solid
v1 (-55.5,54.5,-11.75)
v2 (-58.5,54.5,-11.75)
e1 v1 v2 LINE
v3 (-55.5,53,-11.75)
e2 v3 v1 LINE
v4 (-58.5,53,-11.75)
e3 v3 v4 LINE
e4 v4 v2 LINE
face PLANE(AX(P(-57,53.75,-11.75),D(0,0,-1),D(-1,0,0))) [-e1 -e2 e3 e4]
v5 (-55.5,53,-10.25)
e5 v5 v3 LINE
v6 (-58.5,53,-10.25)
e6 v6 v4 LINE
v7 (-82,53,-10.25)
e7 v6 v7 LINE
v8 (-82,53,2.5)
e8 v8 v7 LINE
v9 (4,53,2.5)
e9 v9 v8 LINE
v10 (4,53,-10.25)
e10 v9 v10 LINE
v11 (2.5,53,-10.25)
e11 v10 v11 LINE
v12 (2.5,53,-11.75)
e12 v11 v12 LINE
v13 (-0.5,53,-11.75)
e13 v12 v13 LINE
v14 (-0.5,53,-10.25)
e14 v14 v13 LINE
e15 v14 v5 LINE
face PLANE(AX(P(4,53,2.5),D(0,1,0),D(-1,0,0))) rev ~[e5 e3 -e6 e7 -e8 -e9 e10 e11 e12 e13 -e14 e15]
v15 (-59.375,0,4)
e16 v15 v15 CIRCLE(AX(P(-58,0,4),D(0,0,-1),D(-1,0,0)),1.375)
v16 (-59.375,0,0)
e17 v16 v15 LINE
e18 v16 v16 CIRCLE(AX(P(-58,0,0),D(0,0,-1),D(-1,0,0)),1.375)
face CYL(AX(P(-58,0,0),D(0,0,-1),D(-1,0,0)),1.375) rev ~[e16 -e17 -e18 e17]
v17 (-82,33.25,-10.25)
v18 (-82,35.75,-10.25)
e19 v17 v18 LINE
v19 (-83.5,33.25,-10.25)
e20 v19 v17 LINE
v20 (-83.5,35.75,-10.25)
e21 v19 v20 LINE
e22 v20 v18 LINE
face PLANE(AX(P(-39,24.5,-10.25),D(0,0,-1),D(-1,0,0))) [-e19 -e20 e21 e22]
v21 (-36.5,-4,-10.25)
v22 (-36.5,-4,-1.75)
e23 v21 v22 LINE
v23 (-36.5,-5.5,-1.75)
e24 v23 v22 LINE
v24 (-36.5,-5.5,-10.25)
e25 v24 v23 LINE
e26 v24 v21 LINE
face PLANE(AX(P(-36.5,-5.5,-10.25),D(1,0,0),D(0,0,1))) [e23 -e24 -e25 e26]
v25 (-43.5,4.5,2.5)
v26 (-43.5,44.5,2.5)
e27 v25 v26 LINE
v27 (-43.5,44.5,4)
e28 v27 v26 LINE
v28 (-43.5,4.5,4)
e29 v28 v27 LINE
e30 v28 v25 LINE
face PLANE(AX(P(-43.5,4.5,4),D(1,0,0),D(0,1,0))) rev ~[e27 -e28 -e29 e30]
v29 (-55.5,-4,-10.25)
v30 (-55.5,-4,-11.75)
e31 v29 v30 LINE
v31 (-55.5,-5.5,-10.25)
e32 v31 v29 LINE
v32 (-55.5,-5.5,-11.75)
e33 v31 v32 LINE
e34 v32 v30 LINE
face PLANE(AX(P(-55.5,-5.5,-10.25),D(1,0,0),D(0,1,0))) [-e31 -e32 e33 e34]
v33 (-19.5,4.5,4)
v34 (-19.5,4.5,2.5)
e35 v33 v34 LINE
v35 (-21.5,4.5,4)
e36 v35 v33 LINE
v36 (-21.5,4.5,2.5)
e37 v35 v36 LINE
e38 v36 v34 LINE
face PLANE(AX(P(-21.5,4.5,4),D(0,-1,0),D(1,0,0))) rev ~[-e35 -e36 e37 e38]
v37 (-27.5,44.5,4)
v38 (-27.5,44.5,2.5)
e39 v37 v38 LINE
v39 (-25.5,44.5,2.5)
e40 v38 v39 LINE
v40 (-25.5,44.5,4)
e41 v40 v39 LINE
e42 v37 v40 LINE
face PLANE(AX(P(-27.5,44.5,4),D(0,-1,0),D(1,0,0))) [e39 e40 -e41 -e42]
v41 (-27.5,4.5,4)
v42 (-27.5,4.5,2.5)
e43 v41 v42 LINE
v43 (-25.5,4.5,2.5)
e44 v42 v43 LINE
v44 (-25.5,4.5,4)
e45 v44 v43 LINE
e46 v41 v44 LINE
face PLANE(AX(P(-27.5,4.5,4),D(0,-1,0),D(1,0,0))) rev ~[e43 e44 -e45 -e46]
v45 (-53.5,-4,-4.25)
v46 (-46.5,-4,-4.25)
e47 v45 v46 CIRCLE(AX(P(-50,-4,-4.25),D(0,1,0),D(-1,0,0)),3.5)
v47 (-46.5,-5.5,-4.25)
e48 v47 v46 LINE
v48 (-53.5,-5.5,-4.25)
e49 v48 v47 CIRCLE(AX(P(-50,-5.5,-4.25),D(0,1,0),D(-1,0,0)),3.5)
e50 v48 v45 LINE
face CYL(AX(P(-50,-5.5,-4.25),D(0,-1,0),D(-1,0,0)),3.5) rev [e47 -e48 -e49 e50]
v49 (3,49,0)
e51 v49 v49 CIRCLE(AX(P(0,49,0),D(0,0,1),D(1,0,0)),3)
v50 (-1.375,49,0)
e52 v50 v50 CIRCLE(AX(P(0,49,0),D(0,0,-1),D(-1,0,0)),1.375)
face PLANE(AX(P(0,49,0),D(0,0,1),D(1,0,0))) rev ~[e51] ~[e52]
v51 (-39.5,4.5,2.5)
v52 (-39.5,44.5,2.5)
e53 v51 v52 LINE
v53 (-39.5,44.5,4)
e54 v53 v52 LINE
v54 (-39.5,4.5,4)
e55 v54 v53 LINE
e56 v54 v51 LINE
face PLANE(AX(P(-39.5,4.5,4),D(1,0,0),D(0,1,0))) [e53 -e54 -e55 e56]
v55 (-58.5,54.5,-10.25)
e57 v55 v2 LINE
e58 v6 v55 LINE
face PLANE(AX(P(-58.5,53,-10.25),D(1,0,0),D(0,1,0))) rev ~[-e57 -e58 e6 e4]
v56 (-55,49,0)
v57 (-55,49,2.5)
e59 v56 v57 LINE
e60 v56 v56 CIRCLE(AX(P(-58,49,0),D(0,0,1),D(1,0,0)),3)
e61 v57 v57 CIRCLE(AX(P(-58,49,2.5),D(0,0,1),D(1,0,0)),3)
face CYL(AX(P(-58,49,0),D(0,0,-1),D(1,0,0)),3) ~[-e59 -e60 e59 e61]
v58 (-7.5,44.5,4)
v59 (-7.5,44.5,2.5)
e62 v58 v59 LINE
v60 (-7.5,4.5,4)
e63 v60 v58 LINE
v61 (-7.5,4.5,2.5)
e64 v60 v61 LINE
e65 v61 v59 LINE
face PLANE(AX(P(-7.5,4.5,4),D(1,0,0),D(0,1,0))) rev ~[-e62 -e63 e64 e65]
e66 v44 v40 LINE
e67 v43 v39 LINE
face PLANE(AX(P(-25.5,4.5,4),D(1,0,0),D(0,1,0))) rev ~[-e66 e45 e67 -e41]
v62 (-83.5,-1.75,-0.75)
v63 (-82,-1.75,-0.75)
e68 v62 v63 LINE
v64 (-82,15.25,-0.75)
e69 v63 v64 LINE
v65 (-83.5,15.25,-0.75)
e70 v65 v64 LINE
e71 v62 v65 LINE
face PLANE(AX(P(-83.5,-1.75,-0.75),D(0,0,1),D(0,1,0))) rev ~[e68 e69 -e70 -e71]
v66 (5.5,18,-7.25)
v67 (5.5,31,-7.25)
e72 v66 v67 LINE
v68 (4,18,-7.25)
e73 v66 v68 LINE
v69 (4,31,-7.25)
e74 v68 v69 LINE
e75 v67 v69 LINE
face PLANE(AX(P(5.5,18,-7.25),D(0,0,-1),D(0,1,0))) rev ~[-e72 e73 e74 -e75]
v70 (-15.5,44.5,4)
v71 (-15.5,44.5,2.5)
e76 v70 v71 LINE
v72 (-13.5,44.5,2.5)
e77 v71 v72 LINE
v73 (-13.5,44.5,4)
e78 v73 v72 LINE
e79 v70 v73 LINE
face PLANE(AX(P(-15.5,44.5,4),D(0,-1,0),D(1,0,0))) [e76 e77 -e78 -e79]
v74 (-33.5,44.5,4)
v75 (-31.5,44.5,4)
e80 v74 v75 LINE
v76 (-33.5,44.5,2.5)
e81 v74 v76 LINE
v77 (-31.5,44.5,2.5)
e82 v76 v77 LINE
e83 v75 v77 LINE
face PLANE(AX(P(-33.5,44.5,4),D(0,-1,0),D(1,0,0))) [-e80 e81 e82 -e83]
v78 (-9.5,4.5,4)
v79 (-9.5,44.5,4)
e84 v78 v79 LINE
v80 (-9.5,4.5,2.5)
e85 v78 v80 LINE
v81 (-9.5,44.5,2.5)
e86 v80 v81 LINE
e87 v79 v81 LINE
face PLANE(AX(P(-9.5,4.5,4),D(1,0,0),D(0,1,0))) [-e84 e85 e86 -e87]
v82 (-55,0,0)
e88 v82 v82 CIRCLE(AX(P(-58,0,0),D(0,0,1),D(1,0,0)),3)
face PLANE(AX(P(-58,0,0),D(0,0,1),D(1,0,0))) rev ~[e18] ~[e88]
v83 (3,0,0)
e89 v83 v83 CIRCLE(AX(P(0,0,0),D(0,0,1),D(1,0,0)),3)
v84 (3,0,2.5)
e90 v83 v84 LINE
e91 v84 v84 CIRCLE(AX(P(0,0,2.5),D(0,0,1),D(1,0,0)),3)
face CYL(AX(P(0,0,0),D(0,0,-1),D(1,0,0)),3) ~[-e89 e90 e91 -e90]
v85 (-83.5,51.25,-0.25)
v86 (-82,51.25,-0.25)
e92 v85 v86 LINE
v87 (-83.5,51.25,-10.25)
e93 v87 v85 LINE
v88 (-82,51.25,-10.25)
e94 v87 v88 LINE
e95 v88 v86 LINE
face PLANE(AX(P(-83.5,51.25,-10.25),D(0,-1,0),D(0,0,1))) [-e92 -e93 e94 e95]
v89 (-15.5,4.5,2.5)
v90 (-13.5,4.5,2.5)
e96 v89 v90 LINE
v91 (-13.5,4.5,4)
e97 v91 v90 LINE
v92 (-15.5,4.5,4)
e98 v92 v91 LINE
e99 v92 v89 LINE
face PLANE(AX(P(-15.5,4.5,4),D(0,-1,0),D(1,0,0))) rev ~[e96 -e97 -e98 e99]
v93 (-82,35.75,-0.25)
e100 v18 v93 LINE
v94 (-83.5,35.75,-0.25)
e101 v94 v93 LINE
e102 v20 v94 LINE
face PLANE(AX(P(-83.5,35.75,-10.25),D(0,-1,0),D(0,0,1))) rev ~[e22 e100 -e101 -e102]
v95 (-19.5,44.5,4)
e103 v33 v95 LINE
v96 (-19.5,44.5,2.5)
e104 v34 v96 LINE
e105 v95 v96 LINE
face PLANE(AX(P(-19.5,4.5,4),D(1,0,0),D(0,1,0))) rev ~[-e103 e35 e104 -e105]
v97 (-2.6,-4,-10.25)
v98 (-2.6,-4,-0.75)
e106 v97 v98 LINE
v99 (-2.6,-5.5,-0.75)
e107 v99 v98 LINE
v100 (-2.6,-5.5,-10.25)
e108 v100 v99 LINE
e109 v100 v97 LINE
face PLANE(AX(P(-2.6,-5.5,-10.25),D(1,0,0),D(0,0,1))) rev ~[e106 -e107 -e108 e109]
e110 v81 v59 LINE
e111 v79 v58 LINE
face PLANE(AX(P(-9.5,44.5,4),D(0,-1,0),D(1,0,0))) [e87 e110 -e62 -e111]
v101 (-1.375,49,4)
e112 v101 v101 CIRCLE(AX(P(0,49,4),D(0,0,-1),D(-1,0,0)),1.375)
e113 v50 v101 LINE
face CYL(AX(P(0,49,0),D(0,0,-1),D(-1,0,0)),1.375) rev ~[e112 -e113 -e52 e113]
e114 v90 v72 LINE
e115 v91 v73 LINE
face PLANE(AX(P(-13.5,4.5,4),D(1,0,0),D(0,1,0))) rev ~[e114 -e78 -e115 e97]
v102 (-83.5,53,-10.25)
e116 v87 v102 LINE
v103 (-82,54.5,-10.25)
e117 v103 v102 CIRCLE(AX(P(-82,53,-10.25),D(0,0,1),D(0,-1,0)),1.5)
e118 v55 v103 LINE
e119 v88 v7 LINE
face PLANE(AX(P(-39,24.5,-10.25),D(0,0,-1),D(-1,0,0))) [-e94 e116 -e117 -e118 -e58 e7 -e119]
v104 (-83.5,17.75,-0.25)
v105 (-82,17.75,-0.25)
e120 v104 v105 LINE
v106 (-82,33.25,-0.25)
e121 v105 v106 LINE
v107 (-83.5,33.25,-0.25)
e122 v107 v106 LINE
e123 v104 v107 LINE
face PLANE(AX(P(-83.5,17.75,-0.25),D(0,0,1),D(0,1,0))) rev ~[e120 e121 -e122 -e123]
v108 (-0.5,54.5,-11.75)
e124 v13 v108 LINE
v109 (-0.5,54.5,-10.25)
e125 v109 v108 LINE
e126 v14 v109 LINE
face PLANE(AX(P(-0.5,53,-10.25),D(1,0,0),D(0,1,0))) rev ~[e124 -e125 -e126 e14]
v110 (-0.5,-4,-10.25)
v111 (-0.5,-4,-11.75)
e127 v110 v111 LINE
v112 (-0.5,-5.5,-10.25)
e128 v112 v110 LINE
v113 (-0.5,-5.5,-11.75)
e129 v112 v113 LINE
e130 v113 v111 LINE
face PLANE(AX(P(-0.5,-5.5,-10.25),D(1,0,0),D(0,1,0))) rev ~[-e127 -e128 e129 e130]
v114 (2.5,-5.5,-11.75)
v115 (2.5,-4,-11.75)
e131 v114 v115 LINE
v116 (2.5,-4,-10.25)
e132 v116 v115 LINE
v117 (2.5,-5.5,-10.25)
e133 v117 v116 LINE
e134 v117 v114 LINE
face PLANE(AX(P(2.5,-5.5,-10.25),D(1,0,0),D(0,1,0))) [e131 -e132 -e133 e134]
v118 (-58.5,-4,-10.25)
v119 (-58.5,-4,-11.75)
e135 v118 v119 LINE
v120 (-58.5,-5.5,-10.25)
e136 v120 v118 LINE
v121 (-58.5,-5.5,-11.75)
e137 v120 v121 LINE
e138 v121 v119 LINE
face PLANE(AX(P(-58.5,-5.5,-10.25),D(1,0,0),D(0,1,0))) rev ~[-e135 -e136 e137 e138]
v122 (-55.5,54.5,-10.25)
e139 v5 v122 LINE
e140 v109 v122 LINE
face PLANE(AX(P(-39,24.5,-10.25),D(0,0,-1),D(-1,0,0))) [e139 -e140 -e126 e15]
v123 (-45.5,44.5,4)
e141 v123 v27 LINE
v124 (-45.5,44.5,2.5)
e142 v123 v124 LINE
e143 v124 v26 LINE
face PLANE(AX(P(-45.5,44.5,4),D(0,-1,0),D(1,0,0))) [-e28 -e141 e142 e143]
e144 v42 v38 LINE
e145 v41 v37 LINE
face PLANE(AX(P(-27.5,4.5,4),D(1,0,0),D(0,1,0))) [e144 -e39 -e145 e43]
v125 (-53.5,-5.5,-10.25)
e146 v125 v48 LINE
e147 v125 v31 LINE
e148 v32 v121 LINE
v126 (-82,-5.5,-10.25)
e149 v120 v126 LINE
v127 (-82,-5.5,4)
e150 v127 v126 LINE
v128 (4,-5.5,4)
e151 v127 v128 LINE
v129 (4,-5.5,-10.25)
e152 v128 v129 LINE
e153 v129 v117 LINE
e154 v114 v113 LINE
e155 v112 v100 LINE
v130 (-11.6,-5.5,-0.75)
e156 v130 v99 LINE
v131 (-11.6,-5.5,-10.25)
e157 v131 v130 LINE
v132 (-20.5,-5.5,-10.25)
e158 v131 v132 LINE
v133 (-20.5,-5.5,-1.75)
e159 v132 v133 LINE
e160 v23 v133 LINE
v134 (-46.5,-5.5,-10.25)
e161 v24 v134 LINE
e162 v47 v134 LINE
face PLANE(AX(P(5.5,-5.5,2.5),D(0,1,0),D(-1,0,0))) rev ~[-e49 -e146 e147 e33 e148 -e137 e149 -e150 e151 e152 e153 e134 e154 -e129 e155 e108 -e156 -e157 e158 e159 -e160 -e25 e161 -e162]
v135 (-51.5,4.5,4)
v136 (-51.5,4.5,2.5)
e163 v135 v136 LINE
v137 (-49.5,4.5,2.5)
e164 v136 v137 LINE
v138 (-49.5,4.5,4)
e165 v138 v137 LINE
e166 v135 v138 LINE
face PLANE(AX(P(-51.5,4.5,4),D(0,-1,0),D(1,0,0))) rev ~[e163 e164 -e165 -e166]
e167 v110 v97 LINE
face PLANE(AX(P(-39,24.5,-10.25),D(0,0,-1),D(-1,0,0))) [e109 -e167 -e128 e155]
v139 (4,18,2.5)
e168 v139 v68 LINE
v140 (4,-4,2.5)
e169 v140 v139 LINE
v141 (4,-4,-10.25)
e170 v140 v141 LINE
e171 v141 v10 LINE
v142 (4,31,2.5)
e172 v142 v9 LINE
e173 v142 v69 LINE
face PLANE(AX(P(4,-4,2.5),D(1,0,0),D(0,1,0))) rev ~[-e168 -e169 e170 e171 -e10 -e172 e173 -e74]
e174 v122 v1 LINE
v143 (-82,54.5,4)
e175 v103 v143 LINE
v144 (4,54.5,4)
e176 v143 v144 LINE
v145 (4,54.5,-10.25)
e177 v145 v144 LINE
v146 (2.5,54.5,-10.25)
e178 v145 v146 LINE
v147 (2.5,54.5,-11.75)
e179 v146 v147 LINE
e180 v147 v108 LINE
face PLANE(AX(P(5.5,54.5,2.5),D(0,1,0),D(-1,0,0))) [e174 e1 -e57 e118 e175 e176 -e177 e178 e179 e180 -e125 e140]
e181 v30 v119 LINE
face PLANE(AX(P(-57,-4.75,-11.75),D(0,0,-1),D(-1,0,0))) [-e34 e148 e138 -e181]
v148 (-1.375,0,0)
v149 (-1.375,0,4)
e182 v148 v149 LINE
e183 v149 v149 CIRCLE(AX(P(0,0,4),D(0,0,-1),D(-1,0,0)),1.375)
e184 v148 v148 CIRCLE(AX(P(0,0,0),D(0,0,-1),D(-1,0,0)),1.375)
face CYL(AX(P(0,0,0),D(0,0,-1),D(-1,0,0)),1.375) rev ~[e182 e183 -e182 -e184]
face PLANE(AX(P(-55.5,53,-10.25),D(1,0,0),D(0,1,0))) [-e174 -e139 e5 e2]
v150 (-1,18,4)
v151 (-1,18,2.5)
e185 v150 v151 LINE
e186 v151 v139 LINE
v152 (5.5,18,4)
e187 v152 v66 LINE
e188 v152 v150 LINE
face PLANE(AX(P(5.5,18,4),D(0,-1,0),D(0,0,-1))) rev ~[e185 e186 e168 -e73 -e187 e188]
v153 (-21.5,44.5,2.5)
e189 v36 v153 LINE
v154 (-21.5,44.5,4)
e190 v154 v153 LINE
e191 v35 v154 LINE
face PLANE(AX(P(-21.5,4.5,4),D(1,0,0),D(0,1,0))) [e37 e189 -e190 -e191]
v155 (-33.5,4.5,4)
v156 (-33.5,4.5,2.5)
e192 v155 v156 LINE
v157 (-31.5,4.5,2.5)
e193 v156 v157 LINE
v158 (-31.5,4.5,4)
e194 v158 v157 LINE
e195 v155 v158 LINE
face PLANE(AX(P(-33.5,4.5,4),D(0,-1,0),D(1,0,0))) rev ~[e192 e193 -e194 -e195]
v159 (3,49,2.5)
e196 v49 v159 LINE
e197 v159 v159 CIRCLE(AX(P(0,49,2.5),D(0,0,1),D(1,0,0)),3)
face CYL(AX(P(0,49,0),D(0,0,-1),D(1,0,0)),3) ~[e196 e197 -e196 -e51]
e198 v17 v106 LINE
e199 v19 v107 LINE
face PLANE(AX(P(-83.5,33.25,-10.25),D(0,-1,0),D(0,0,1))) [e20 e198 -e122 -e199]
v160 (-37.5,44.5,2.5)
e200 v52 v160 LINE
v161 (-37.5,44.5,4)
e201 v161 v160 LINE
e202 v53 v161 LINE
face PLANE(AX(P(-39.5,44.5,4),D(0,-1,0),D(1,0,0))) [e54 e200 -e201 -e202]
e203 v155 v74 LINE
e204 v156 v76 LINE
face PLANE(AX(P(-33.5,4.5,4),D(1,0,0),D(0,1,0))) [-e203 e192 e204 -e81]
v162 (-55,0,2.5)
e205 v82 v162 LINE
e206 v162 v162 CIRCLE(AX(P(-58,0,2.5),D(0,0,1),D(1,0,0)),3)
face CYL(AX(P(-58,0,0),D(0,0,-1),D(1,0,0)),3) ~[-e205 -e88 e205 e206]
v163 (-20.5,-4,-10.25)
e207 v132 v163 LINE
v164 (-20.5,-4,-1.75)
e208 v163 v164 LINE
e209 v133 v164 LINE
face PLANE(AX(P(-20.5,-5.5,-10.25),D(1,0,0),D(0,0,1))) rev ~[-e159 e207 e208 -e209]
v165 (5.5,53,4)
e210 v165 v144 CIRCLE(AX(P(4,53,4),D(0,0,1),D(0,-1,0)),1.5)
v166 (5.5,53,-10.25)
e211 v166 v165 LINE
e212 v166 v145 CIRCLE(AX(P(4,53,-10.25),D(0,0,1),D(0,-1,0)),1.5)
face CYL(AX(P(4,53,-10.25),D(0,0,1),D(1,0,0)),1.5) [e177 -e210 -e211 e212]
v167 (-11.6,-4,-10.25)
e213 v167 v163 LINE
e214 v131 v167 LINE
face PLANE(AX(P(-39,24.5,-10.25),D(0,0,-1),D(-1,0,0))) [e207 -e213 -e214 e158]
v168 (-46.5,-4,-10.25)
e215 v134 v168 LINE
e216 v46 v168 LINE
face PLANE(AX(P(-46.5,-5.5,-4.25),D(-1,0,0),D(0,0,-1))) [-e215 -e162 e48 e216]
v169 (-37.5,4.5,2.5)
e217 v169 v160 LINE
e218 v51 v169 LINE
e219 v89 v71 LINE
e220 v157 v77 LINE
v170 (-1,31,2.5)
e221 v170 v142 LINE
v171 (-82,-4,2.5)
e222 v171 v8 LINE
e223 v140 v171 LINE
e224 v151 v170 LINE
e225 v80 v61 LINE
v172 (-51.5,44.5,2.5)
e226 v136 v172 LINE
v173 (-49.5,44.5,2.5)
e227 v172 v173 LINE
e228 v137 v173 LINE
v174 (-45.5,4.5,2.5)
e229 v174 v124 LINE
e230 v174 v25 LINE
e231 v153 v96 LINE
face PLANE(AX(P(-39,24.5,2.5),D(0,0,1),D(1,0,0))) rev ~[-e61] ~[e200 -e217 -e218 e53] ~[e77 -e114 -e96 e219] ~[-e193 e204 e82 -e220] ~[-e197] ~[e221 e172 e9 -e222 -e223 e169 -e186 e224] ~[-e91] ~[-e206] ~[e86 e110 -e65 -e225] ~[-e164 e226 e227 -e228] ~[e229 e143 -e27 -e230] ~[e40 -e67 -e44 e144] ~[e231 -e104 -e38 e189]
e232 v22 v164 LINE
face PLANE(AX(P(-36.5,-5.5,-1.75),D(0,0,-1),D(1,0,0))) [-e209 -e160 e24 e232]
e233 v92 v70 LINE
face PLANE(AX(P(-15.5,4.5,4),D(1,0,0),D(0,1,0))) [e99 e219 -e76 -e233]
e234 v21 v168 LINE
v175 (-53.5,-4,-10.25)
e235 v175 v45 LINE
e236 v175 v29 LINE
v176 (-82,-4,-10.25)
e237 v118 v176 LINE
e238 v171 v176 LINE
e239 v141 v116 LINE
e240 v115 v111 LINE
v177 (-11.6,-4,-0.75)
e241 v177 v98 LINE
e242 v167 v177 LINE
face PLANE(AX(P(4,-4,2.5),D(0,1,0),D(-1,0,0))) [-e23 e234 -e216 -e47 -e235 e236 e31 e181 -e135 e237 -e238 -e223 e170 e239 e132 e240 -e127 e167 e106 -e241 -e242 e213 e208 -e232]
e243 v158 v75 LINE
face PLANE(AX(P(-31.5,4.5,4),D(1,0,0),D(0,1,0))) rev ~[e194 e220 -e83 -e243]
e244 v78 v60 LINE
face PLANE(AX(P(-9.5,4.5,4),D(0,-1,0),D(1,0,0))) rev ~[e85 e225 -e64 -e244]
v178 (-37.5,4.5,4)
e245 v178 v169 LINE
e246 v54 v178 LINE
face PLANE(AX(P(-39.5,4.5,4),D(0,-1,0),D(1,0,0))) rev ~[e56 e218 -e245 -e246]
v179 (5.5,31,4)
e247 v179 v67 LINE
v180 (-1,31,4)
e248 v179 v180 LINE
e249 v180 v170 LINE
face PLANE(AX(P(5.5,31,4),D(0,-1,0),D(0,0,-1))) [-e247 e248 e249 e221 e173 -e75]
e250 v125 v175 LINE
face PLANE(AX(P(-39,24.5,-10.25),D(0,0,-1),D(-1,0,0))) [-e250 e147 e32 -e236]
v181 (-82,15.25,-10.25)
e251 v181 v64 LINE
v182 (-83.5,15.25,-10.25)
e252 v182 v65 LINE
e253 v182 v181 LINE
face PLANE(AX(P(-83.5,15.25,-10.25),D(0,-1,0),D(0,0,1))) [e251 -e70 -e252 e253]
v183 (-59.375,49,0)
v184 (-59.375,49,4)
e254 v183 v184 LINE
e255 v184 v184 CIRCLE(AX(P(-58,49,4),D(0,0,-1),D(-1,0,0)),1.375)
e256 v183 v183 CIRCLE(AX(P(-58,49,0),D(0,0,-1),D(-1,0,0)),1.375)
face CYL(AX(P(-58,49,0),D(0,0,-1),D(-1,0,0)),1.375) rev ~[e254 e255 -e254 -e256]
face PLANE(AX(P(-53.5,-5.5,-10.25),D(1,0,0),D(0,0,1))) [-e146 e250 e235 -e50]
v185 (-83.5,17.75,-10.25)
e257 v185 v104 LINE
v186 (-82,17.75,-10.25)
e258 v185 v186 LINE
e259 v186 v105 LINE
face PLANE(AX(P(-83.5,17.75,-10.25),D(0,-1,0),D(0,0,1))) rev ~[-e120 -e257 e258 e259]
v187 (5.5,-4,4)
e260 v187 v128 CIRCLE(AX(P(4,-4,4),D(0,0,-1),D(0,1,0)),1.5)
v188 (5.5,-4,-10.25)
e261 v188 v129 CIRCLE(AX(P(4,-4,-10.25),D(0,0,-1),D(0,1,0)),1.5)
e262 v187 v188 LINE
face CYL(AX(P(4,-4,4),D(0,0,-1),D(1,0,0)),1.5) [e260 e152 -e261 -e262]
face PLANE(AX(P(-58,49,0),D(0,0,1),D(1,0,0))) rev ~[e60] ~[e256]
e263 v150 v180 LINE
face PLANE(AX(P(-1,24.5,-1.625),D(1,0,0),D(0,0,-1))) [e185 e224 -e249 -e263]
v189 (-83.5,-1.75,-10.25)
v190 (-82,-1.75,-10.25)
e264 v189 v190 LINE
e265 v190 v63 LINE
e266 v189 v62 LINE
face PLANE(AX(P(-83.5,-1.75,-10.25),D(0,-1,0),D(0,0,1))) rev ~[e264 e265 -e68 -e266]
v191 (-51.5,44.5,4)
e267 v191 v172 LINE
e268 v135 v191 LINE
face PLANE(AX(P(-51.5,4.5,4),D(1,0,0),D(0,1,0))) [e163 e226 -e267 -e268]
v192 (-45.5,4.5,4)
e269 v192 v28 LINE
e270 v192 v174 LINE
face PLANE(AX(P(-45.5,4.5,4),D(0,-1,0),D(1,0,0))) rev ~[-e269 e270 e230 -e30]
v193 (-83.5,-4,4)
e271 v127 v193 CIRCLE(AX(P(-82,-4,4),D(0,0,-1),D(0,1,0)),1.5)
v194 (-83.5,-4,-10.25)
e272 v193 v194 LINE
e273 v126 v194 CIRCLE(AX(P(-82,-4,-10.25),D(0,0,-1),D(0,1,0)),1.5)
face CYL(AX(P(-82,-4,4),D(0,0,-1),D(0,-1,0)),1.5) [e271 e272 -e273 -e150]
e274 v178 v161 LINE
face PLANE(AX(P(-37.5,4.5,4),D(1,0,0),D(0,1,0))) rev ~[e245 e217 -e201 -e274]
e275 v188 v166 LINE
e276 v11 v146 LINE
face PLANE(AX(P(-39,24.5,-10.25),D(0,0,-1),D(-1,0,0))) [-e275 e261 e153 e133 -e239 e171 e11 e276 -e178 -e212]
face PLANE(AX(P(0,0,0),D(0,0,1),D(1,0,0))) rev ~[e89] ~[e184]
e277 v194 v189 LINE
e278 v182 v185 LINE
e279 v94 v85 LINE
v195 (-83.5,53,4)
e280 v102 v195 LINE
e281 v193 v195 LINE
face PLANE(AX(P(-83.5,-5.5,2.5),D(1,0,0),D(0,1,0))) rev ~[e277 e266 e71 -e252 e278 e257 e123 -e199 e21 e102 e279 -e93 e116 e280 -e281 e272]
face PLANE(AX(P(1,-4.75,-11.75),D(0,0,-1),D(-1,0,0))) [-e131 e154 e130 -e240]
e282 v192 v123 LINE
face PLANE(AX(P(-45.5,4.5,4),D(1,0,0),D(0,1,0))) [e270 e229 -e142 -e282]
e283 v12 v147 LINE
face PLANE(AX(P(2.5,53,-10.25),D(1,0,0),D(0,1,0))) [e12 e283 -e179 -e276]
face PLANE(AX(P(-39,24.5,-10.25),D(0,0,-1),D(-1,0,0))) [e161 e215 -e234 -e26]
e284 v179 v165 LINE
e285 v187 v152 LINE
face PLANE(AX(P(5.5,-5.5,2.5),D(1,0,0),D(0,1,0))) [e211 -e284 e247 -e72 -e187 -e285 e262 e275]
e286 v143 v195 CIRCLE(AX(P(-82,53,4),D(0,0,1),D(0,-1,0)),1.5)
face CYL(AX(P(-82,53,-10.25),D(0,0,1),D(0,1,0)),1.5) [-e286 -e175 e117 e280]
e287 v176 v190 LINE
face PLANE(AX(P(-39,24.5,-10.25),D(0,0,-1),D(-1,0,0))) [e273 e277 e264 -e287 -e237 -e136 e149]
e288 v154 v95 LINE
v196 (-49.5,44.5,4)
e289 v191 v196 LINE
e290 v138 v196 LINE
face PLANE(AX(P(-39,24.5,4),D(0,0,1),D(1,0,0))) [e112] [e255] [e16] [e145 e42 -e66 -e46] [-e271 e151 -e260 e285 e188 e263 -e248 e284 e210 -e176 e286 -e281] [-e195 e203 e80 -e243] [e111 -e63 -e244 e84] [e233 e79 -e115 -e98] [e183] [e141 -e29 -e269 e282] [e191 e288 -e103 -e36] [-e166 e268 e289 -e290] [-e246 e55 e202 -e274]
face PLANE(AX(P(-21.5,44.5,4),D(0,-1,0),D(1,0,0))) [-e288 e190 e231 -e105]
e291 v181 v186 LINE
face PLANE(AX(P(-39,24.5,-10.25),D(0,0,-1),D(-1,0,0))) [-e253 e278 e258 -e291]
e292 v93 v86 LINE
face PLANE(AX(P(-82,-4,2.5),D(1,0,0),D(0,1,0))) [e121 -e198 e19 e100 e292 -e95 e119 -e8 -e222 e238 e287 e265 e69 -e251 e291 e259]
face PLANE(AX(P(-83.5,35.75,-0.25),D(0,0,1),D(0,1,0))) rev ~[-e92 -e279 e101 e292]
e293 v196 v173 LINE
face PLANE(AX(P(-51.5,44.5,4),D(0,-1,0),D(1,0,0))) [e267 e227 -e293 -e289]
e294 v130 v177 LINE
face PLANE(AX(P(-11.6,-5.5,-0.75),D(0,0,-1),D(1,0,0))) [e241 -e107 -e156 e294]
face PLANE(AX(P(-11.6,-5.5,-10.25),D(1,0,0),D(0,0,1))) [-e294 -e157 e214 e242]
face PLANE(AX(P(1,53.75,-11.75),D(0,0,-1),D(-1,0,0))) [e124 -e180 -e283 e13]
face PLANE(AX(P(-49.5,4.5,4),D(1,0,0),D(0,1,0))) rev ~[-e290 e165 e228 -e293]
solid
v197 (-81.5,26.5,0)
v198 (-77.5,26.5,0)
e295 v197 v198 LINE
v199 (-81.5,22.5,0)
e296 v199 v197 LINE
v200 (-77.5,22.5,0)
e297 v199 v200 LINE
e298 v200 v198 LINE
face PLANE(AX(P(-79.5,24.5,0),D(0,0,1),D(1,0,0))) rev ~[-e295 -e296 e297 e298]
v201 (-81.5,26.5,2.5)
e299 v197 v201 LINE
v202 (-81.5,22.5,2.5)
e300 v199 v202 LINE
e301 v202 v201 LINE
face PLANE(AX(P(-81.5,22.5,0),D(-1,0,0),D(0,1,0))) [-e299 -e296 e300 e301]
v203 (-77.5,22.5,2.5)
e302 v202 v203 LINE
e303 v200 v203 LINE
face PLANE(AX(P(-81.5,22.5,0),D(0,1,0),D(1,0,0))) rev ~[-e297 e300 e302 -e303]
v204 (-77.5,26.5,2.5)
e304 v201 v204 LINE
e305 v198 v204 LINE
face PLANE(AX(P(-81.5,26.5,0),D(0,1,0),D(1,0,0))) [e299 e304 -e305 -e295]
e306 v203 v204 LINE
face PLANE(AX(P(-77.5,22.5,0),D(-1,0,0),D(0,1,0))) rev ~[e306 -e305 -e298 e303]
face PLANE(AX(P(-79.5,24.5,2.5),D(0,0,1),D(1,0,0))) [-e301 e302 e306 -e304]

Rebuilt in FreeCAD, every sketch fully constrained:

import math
import FreeCAD as App
import Part
import Sketcher

V = App.Vector
Q = App.Units.Quantity


def edges_at(feature, points):
    """Names of the edges that pass closest to the given points."""
    edges = feature.Shape.Edges
    near = lambda p: min(range(len(edges)), key=lambda i: edges[i].distToShape(Part.Vertex(*p))[0])
    return sorted({f"Edge{near(p) + 1}" for p in points})

doc = App.newDocument("Part")
body = doc.addObject("PartDesign::Body", "Body")

sketch1 = body.newObject("Sketcher::SketchObject", "Sketch")
sketch1.AttachmentSupport = (doc.getObject("XY_Plane"), [""])
sketch1.MapMode = "FlatFace"
sketch1.addGeometry(Part.Circle(V(0, 0, 0), V(0, 0, 1), 3), False)
sketch1.addConstraint([
    Sketcher.Constraint("Coincident", 0, 3, -1, 1),
    Sketcher.Constraint("Diameter", 0, Q("6 mm")),
])
pad1 = body.newObject("PartDesign::Pad", "Pad")
pad1.Profile = sketch1
pad1.Length = 2.5
body2 = doc.addObject("PartDesign::Body", "Body001")

sketch2 = body2.newObject("Sketcher::SketchObject", "Sketch001")
sketch2.AttachmentSupport = (doc.getObject("XY_Plane001"), [""])
sketch2.MapMode = "FlatFace"
sketch2.addGeometry(Part.Circle(V(0, 49, 0), V(0, 0, 1), 3), False)
sketch2.addConstraint([
    Sketcher.Constraint("PointOnObject", 0, 3, -2),
    Sketcher.Constraint("Diameter", 0, Q("6 mm")),
    Sketcher.Constraint("DistanceY", -1, 1, 0, 3, Q("49 mm")),
])
pad2 = body2.newObject("PartDesign::Pad", "Pad001")
pad2.Profile = sketch2
pad2.Length = 2.5
body3 = doc.addObject("PartDesign::Body", "Body002")

sketch3 = body3.newObject("Sketcher::SketchObject", "Sketch002")
sketch3.AttachmentSupport = (doc.getObject("XY_Plane002"), [""])
sketch3.MapMode = "FlatFace"
sketch3.addGeometry(Part.Circle(V(-58, 0, 0), V(0, 0, 1), 3), False)
sketch3.addConstraint([
    Sketcher.Constraint("PointOnObject", 0, 3, -1),
    Sketcher.Constraint("Diameter", 0, Q("6 mm")),
    Sketcher.Constraint("DistanceX", 0, 3, -1, 1, Q("58 mm")),
])
pad3 = body3.newObject("PartDesign::Pad", "Pad002")
pad3.Profile = sketch3
pad3.Length = 2.5
body4 = doc.addObject("PartDesign::Body", "Body003")

sketch4 = body4.newObject("Sketcher::SketchObject", "Sketch003")
sketch4.AttachmentSupport = (doc.getObject("XY_Plane003"), [""])
sketch4.MapMode = "FlatFace"
sketch4.addGeometry(Part.Circle(V(-58, 49, 0), V(0, 0, 1), 3), False)
sketch4.addConstraint([
    Sketcher.Constraint("Diameter", 0, Q("6 mm")),
    Sketcher.Constraint("DistanceX", 0, 3, -1, 1, Q("58 mm")),
    Sketcher.Constraint("DistanceY", -1, 1, 0, 3, Q("49 mm")),
])
pad4 = body4.newObject("PartDesign::Pad", "Pad003")
pad4.Profile = sketch4
pad4.Length = 2.5
body5 = doc.addObject("PartDesign::Body", "Body004")

sketch5 = body5.newObject("Sketcher::SketchObject", "Sketch004")
sketch5.AttachmentSupport = (doc.getObject("XY_Plane004"), [""])
sketch5.MapMode = "FlatFace"
sketch5.addGeometry([
    Part.LineSegment(V(-81.5, 26.5, 0), V(-81.5, 22.5, 0)),
    Part.LineSegment(V(-81.5, 22.5, 0), V(-77.5, 22.5, 0)),
    Part.LineSegment(V(-77.5, 22.5, 0), V(-77.5, 26.5, 0)),
    Part.LineSegment(V(-77.5, 26.5, 0), V(-81.5, 26.5, 0)),
], False)
sketch5.addConstraint([
    Sketcher.Constraint("Coincident", 0, 2, 1, 1),
    Sketcher.Constraint("Coincident", 1, 2, 2, 1),
    Sketcher.Constraint("Coincident", 2, 2, 3, 1),
    Sketcher.Constraint("Coincident", 3, 2, 0, 1),
    Sketcher.Constraint("Vertical", 0),
    Sketcher.Constraint("Horizontal", 1),
    Sketcher.Constraint("Vertical", 2),
    Sketcher.Constraint("Horizontal", 3),
    Sketcher.Constraint("Equal", 3, 0),
    Sketcher.Constraint("DistanceX", 1, 1, 1, 2, Q("4 mm")),
    Sketcher.Constraint("DistanceX", 0, 2, -1, 1, Q("81.5 mm")),
    Sketcher.Constraint("DistanceY", -1, 1, 0, 2, Q("22.5 mm")),
])
pad5 = body5.newObject("PartDesign::Pad", "Pad004")
pad5.Profile = sketch5
pad5.Length = 2.5
body.AllowCompound = True
doc.recompute()

boolean = body.newObject("PartDesign::Boolean", "Boolean")
boolean.Type = "Fuse"
boolean.addObjects([body2])
doc.recompute()

boolean2 = body.newObject("PartDesign::Boolean", "Boolean001")
boolean2.Type = "Fuse"
boolean2.addObjects([body3])
doc.recompute()

boolean3 = body.newObject("PartDesign::Boolean", "Boolean002")
boolean3.Type = "Fuse"
boolean3.addObjects([body4])

sketch6 = body.newObject("Sketcher::SketchObject", "Sketch005")
sketch6.AttachmentSupport = (doc.getObject("XY_Plane"), [""])
sketch6.MapMode = "FlatFace"
sketch6.AttachmentOffset = App.Placement(V(0, 0, 2.5), App.Rotation())
sketch6.addGeometry([
    Part.LineSegment(V(-84, 54, 0), V(-84, -6, 0)),
    Part.LineSegment(V(-84, -6, 0), V(6, -6, 0)),
    Part.LineSegment(V(6, -6, 0), V(6, 54, 0)),
    Part.LineSegment(V(6, 54, 0), V(-84, 54, 0)),
], False)
sketch6.addConstraint([
    Sketcher.Constraint("Coincident", 0, 2, 1, 1),
    Sketcher.Constraint("Coincident", 1, 2, 2, 1),
    Sketcher.Constraint("Coincident", 2, 2, 3, 1),
    Sketcher.Constraint("Coincident", 3, 2, 0, 1),
    Sketcher.Constraint("Vertical", 0),
    Sketcher.Constraint("Horizontal", 1),
    Sketcher.Constraint("Vertical", 2),
    Sketcher.Constraint("Horizontal", 3),
    Sketcher.Constraint("DistanceX", 1, 1, 1, 2, Q("89 mm")),
    Sketcher.Constraint("DistanceY", 0, 2, 0, 1, Q("60 mm")),
    Sketcher.Constraint("DistanceX", 0, 2, -1, 1, Q("83.5 mm")),
    Sketcher.Constraint("DistanceY", 0, 2, -1, 1, Q("5.5 mm")),
])
pad6 = body.newObject("PartDesign::Pad", "Pad005")
pad6.Profile = sketch6
pad6.Length = 1.5

sketch7 = body.newObject("Sketcher::SketchObject", "Sketch006")
sketch7.AttachmentSupport = (doc.getObject("XY_Plane"), [""])
sketch7.MapMode = "FlatFace"
sketch7.AttachmentOffset = App.Placement(V(0, 0, 2.5), App.Rotation())
sketch7.addGeometry([
    Part.LineSegment(V(6, 54, 0), V(6, -6, 0)),
    Part.LineSegment(V(6, -6, 0), V(-84, -6, 0)),
    Part.LineSegment(V(-84, -6, 0), V(-84, 54, 0)),
    Part.LineSegment(V(-84, 54, 0), V(6, 54, 0)),
    Part.LineSegment(V(-82, -4, 0), V(4, -4, 0)),
    Part.LineSegment(V(4, -4, 0), V(4, 53, 0)),
    Part.LineSegment(V(4, 53, 0), V(-82, 53, 0)),
    Part.LineSegment(V(-82, 53, 0), V(-82, -4, 0)),
], False)
sketch7.addConstraint([
    Sketcher.Constraint("Coincident", 0, 2, 1, 1),
    Sketcher.Constraint("Coincident", 1, 2, 2, 1),
    Sketcher.Constraint("Coincident", 2, 2, 3, 1),
    Sketcher.Constraint("Coincident", 3, 2, 0, 1),
    Sketcher.Constraint("Coincident", 4, 2, 5, 1),
    Sketcher.Constraint("Coincident", 5, 2, 6, 1),
    Sketcher.Constraint("Coincident", 6, 2, 7, 1),
    Sketcher.Constraint("Coincident", 7, 2, 4, 1),
    Sketcher.Constraint("Vertical", 0),
    Sketcher.Constraint("Horizontal", 1),
    Sketcher.Constraint("Vertical", 2),
    Sketcher.Constraint("Horizontal", 3),
    Sketcher.Constraint("Horizontal", 4),
    Sketcher.Constraint("Vertical", 5),
    Sketcher.Constraint("Horizontal", 6),
    Sketcher.Constraint("Vertical", 7),
    Sketcher.Constraint("DistanceX", 1, 2, 1, 1, Q("89 mm")),
    Sketcher.Constraint("DistanceX", 4, 1, 4, 2, Q("86 mm")),
    Sketcher.Constraint("DistanceY", 0, 2, 0, 1, Q("60 mm")),
    Sketcher.Constraint("DistanceY", 5, 1, 5, 2, Q("57 mm")),
    Sketcher.Constraint("DistanceX", -1, 1, 4, 2, Q("4 mm")),
    Sketcher.Constraint("DistanceY", 4, 2, -1, 1, Q("4 mm")),
    Sketcher.Constraint("DistanceX", -1, 1, 0, 2, Q("5.5 mm")),
    Sketcher.Constraint("DistanceY", 0, 2, -1, 1, Q("5.5 mm")),
])
pad7 = body.newObject("PartDesign::Pad", "Pad006")
pad7.Profile = sketch7
pad7.Length = 12.75
pad7.Reversed = True

sketch8 = body.newObject("Sketcher::SketchObject", "Sketch007")
sketch8.AttachmentSupport = (doc.getObject("YZ_Plane"), [""])
sketch8.MapMode = "FlatFace"
sketch8.AttachmentOffset = App.Placement(V(0, 0, -83.5), App.Rotation())
sketch8.addGeometry([
    Part.LineSegment(V(51, -10, 0), V(36, -10, 0)),
    Part.LineSegment(V(36, -10, 0), V(36, 0, 0)),
    Part.LineSegment(V(36, 0, 0), V(51, 0, 0)),
    Part.LineSegment(V(51, 0, 0), V(51, -10, 0)),
    Part.LineSegment(V(33, -10, 0), V(18, -10, 0)),
    Part.LineSegment(V(18, -10, 0), V(18, 0, 0)),
    Part.LineSegment(V(18, 0, 0), V(33, 0, 0)),
    Part.LineSegment(V(33, 0, 0), V(33, -10, 0)),
    Part.LineSegment(V(15, -10, 0), V(-2, -10, 0)),
    Part.LineSegment(V(-2, -10, 0), V(-2, -1, 0)),
    Part.LineSegment(V(-2, -1, 0), V(15, -1, 0)),
    Part.LineSegment(V(15, -1, 0), V(15, -10, 0)),
], False)
sketch8.addConstraint([
    Sketcher.Constraint("Coincident", 0, 2, 1, 1),
    Sketcher.Constraint("Coincident", 1, 2, 2, 1),
    Sketcher.Constraint("Coincident", 2, 2, 3, 1),
    Sketcher.Constraint("Coincident", 3, 2, 0, 1),
    Sketcher.Constraint("Coincident", 4, 2, 5, 1),
    Sketcher.Constraint("Coincident", 5, 2, 6, 1),
    Sketcher.Constraint("Coincident", 6, 2, 7, 1),
    Sketcher.Constraint("Coincident", 7, 2, 4, 1),
    Sketcher.Constraint("Coincident", 8, 2, 9, 1),
    Sketcher.Constraint("Coincident", 9, 2, 10, 1),
    Sketcher.Constraint("Coincident", 10, 2, 11, 1),
    Sketcher.Constraint("Coincident", 11, 2, 8, 1),
    Sketcher.Constraint("Horizontal", 0),
    Sketcher.Constraint("Vertical", 1),
    Sketcher.Constraint("Horizontal", 2),
    Sketcher.Constraint("Vertical", 3),
    Sketcher.Constraint("Horizontal", 4),
    Sketcher.Constraint("Vertical", 5),
    Sketcher.Constraint("Horizontal", 6),
    Sketcher.Constraint("Vertical", 7),
    Sketcher.Constraint("Horizontal", 8),
    Sketcher.Constraint("Vertical", 9),
    Sketcher.Constraint("Horizontal", 10),
    Sketcher.Constraint("Vertical", 11),
    Sketcher.Constraint("Horizontal", 3, 2, 4, 2),
    Sketcher.Constraint("Horizontal", 2, 2, 5, 2),
    Sketcher.Constraint("Horizontal", 7, 2, 8, 2),
    Sketcher.Constraint("Equal", 2, 4),
    Sketcher.Constraint("DistanceX", 8, 2, 8, 1, Q("17 mm")),
    Sketcher.Constraint("DistanceY", 1, 1, 1, 2, Q("10 mm")),
    Sketcher.Constraint("DistanceX", 0, 2, 0, 1, Q("15.5 mm")),
    Sketcher.Constraint("DistanceY", 9, 1, 9, 2, Q("9.5 mm")),
    Sketcher.Constraint("DistanceX", 4, 2, 0, 2, Q("18 mm")),
    Sketcher.Constraint("DistanceX", 8, 2, 7, 2, Q("35 mm")),
    Sketcher.Constraint("DistanceX", -1, 1, 0, 2, Q("35.75 mm")),
    Sketcher.Constraint("DistanceY", 0, 2, -1, 1, Q("10.25 mm")),
])
pocket1 = body.newObject("PartDesign::Pocket", "Pocket")
pocket1.Profile = sketch8
pocket1.Length = 1.5
pocket1.Reversed = True

sketch9 = body.newObject("Sketcher::SketchObject", "Sketch008")
sketch9.AttachmentSupport = (doc.getObject("XZ_Plane"), [""])
sketch9.MapMode = "FlatFace"
sketch9.AttachmentOffset = App.Placement(V(0, 0, 5.5), App.Rotation())
sketch9.addGeometry([
    Part.LineSegment(V(-53.5, -10.2, 0), V(-46.5, -10.2, 0)),
    Part.LineSegment(V(-46.5, -10.2, 0), V(-46.5, -4.2, 0)),
    Part.ArcOfCircle(Part.Circle(V(-50, -4.2, 0), V(0, 0, 1), 3.5), math.radians(0), math.radians(180)),
    Part.LineSegment(V(-53.5, -4.2, 0), V(-53.5, -10.2, 0)),
    Part.LineSegment(V(-36.5, -1.8, 0), V(-36.5, -10.2, 0)),
    Part.LineSegment(V(-36.5, -10.2, 0), V(-20.5, -10.2, 0)),
    Part.LineSegment(V(-20.5, -10.2, 0), V(-20.5, -1.8, 0)),
    Part.LineSegment(V(-20.5, -1.8, 0), V(-36.5, -1.8, 0)),
    Part.LineSegment(V(-11.6, -0.8, 0), V(-11.6, -10.2, 0)),
    Part.LineSegment(V(-11.6, -10.2, 0), V(-2.6, -10.2, 0)),
    Part.LineSegment(V(-2.6, -10.2, 0), V(-2.6, -0.8, 0)),
    Part.LineSegment(V(-2.6, -0.8, 0), V(-11.6, -0.8, 0)),
], False)
sketch9.addConstraint([
    Sketcher.Constraint("Coincident", 0, 2, 1, 1),
    Sketcher.Constraint("Tangent", 1, 2, 2, 1),
    Sketcher.Constraint("Tangent", 2, 2, 3, 1),
    Sketcher.Constraint("Coincident", 3, 2, 0, 1),
    Sketcher.Constraint("Coincident", 4, 2, 5, 1),
    Sketcher.Constraint("Coincident", 5, 2, 6, 1),
    Sketcher.Constraint("Coincident", 6, 2, 7, 1),
    Sketcher.Constraint("Coincident", 7, 2, 4, 1),
    Sketcher.Constraint("Coincident", 8, 2, 9, 1),
    Sketcher.Constraint("Coincident", 9, 2, 10, 1),
    Sketcher.Constraint("Coincident", 10, 2, 11, 1),
    Sketcher.Constraint("Coincident", 11, 2, 8, 1),
    Sketcher.Constraint("Horizontal", 0),
    Sketcher.Constraint("Vertical", 1),
    Sketcher.Constraint("Vertical", 3),
    Sketcher.Constraint("Vertical", 4),
    Sketcher.Constraint("Horizontal", 5),
    Sketcher.Constraint("Vertical", 6),
    Sketcher.Constraint("Horizontal", 7),
    Sketcher.Constraint("Vertical", 8),
    Sketcher.Constraint("Horizontal", 9),
    Sketcher.Constraint("Vertical", 10),
    Sketcher.Constraint("Horizontal", 11),
    Sketcher.Constraint("Horizontal", 3, 2, 4, 2),
    Sketcher.Constraint("Horizontal", 5, 2, 8, 2),
    Sketcher.Constraint("Radius", 2, Q("3.5 mm")),
    Sketcher.Constraint("DistanceX", 5, 1, 5, 2, Q("16 mm")),
    Sketcher.Constraint("DistanceX", 9, 1, 9, 2, Q("9 mm")),
    Sketcher.Constraint("DistanceY", 1, 1, 1, 2, Q("6 mm")),
    Sketcher.Constraint("DistanceY", 4, 2, 4, 1, Q("8.5 mm")),
    Sketcher.Constraint("DistanceY", 8, 2, 8, 1, Q("9.5 mm")),
    Sketcher.Constraint("DistanceX", 2, 3, -1, 1, Q("50 mm")),
    Sketcher.Constraint("DistanceX", 0, 2, 4, 2, Q("10 mm")),
    Sketcher.Constraint("DistanceX", 8, 2, -1, 1, Q("11.6 mm")),
    Sketcher.Constraint("DistanceY", 2, 3, -1, 1, Q("4.25 mm")),
])
pocket2 = body.newObject("PartDesign::Pocket", "Pocket001")
pocket2.Profile = sketch9
pocket2.Length = 1.5

sketch10 = body.newObject("Sketcher::SketchObject", "Sketch009")
sketch10.AttachmentSupport = (doc.getObject("YZ_Plane"), [""])
sketch10.MapMode = "FlatFace"
sketch10.AttachmentOffset = App.Placement(V(0, 0, 5.5), App.Rotation())
sketch10.addGeometry([
    Part.LineSegment(V(31, 4, 0), V(18, 4, 0)),
    Part.LineSegment(V(18, 4, 0), V(18, -7, 0)),
    Part.LineSegment(V(18, -7, 0), V(31, -7, 0)),
    Part.LineSegment(V(31, -7, 0), V(31, 4, 0)),
], False)
sketch10.addConstraint([
    Sketcher.Constraint("Coincident", 0, 2, 1, 1),
    Sketcher.Constraint("Coincident", 1, 2, 2, 1),
    Sketcher.Constraint("Coincident", 2, 2, 3, 1),
    Sketcher.Constraint("Coincident", 3, 2, 0, 1),
    Sketcher.Constraint("Horizontal", 0),
    Sketcher.Constraint("Vertical", 1),
    Sketcher.Constraint("Horizontal", 2),
    Sketcher.Constraint("Vertical", 3),
    Sketcher.Constraint("DistanceX", 0, 2, 0, 1, Q("13 mm")),
    Sketcher.Constraint("DistanceX", -1, 1, 0, 2, Q("18 mm")),
    Sketcher.Constraint("DistanceY", -1, 1, 0, 2, Q("4 mm")),
    Sketcher.Constraint("DistanceY", 1, 2, 1, 1, Q("11.25 mm")),
])
pocket3 = body.newObject("PartDesign::Pocket", "Pocket002")
pocket3.Profile = sketch10
pocket3.Length = 6.5

sketch11 = body.newObject("Sketcher::SketchObject", "Sketch010")
sketch11.AttachmentSupport = (doc.getObject("XY_Plane"), [""])
sketch11.MapMode = "FlatFace"
sketch11.addGeometry([
    Part.Circle(V(0, 0, 0), V(0, 0, 1), 1.4),
    Part.Circle(V(0, 49, 0), V(0, 0, 1), 1.4),
    Part.Circle(V(-58, 49, 0), V(0, 0, 1), 1.4),
    Part.Circle(V(-58, 0, 0), V(0, 0, 1), 1.4),
], False)
sketch11.addConstraint([
    Sketcher.Constraint("Coincident", 0, 3, -1, 1),
    Sketcher.Constraint("Equal", 0, 1),
    Sketcher.Constraint("Equal", 1, 2),
    Sketcher.Constraint("Equal", 2, 3),
    Sketcher.Constraint("PointOnObject", 1, 3, -2),
    Sketcher.Constraint("PointOnObject", 3, 3, -1),
    Sketcher.Constraint("Horizontal", 1, 3, 2, 3),
    Sketcher.Constraint("Vertical", 2, 3, 3, 3),
    Sketcher.Constraint("Diameter", 0, Q("2.75 mm")),
    Sketcher.Constraint("DistanceY", -1, 1, 1, 3, Q("49 mm")),
    Sketcher.Constraint("DistanceX", 2, 3, -1, 1, Q("58 mm")),
])
pocket4 = body.newObject("PartDesign::Pocket", "Pocket003")
pocket4.Profile = sketch11
pocket4.Type = "ThroughAll"
pocket4.Reversed = True

sketch12 = body.newObject("Sketcher::SketchObject", "Sketch011")
sketch12.AttachmentSupport = (doc.getObject("XY_Plane"), [""])
sketch12.MapMode = "FlatFace"
sketch12.AttachmentOffset = App.Placement(V(0, 0, 4), App.Rotation())
sketch12.addGeometry([
    Part.LineSegment(V(-9.5, 44.5, 0), V(-9.5, 4.5, 0)),
    Part.LineSegment(V(-9.5, 4.5, 0), V(-7.5, 4.5, 0)),
    Part.LineSegment(V(-7.5, 4.5, 0), V(-7.5, 44.5, 0)),
    Part.LineSegment(V(-7.5, 44.5, 0), V(-9.5, 44.5, 0)),
    Part.LineSegment(V(-15.5, 44.5, 0), V(-15.5, 4.5, 0)),
    Part.LineSegment(V(-15.5, 4.5, 0), V(-13.5, 4.5, 0)),
    Part.LineSegment(V(-13.5, 4.5, 0), V(-13.5, 44.5, 0)),
    Part.LineSegment(V(-13.5, 44.5, 0), V(-15.5, 44.5, 0)),
    Part.LineSegment(V(-21.5, 44.5, 0), V(-21.5, 4.5, 0)),
    Part.LineSegment(V(-21.5, 4.5, 0), V(-19.5, 4.5, 0)),
    Part.LineSegment(V(-19.5, 4.5, 0), V(-19.5, 44.5, 0)),
    Part.LineSegment(V(-19.5, 44.5, 0), V(-21.5, 44.5, 0)),
    Part.LineSegment(V(-27.5, 44.5, 0), V(-27.5, 4.5, 0)),
    Part.LineSegment(V(-27.5, 4.5, 0), V(-25.5, 4.5, 0)),
    Part.LineSegment(V(-25.5, 4.5, 0), V(-25.5, 44.5, 0)),
    Part.LineSegment(V(-25.5, 44.5, 0), V(-27.5, 44.5, 0)),
    Part.LineSegment(V(-33.5, 44.5, 0), V(-33.5, 4.5, 0)),
    Part.LineSegment(V(-33.5, 4.5, 0), V(-31.5, 4.5, 0)),
    Part.LineSegment(V(-31.5, 4.5, 0), V(-31.5, 44.5, 0)),
    Part.LineSegment(V(-31.5, 44.5, 0), V(-33.5, 44.5, 0)),
    Part.LineSegment(V(-39.5, 44.5, 0), V(-39.5, 4.5, 0)),
    Part.LineSegment(V(-39.5, 4.5, 0), V(-37.5, 4.5, 0)),
    Part.LineSegment(V(-37.5, 4.5, 0), V(-37.5, 44.5, 0)),
    Part.LineSegment(V(-37.5, 44.5, 0), V(-39.5, 44.5, 0)),
    Part.LineSegment(V(-45.5, 44.5, 0), V(-45.5, 4.5, 0)),
    Part.LineSegment(V(-45.5, 4.5, 0), V(-43.5, 4.5, 0)),
    Part.LineSegment(V(-43.5, 4.5, 0), V(-43.5, 44.5, 0)),
    Part.LineSegment(V(-43.5, 44.5, 0), V(-45.5, 44.5, 0)),
    Part.LineSegment(V(-51.5, 44.5, 0), V(-51.5, 4.5, 0)),
    Part.LineSegment(V(-51.5, 4.5, 0), V(-49.5, 4.5, 0)),
    Part.LineSegment(V(-49.5, 4.5, 0), V(-49.5, 44.5, 0)),
    Part.LineSegment(V(-49.5, 44.5, 0), V(-51.5, 44.5, 0)),
], False)
sketch12.addConstraint([
    Sketcher.Constraint("Coincident", 0, 2, 1, 1),
    Sketcher.Constraint("Coincident", 1, 2, 2, 1),
    Sketcher.Constraint("Coincident", 2, 2, 3, 1),
    Sketcher.Constraint("Coincident", 3, 2, 0, 1),
    Sketcher.Constraint("Coincident", 4, 2, 5, 1),
    Sketcher.Constraint("Coincident", 5, 2, 6, 1),
    Sketcher.Constraint("Coincident", 6, 2, 7, 1),
    Sketcher.Constraint("Coincident", 7, 2, 4, 1),
    Sketcher.Constraint("Coincident", 8, 2, 9, 1),
    Sketcher.Constraint("Coincident", 9, 2, 10, 1),
    Sketcher.Constraint("Coincident", 10, 2, 11, 1),
    Sketcher.Constraint("Coincident", 11, 2, 8, 1),
    Sketcher.Constraint("Coincident", 12, 2, 13, 1),
    Sketcher.Constraint("Coincident", 13, 2, 14, 1),
    Sketcher.Constraint("Coincident", 14, 2, 15, 1),
    Sketcher.Constraint("Coincident", 15, 2, 12, 1),
    Sketcher.Constraint("Coincident", 16, 2, 17, 1),
    Sketcher.Constraint("Coincident", 17, 2, 18, 1),
    Sketcher.Constraint("Coincident", 18, 2, 19, 1),
    Sketcher.Constraint("Coincident", 19, 2, 16, 1),
    Sketcher.Constraint("Coincident", 20, 2, 21, 1),
    Sketcher.Constraint("Coincident", 21, 2, 22, 1),
    Sketcher.Constraint("Coincident", 22, 2, 23, 1),
    Sketcher.Constraint("Coincident", 23, 2, 20, 1),
    Sketcher.Constraint("Coincident", 24, 2, 25, 1),
    Sketcher.Constraint("Coincident", 25, 2, 26, 1),
    Sketcher.Constraint("Coincident", 26, 2, 27, 1),
    Sketcher.Constraint("Coincident", 27, 2, 24, 1),
    Sketcher.Constraint("Coincident", 28, 2, 29, 1),
    Sketcher.Constraint("Coincident", 29, 2, 30, 1),
    Sketcher.Constraint("Coincident", 30, 2, 31, 1),
    Sketcher.Constraint("Coincident", 31, 2, 28, 1),
    Sketcher.Constraint("Vertical", 0),
    Sketcher.Constraint("Horizontal", 1),
    Sketcher.Constraint("Vertical", 2),
    Sketcher.Constraint("Horizontal", 3),
    Sketcher.Constraint("Vertical", 4),
    Sketcher.Constraint("Horizontal", 5),
    Sketcher.Constraint("Vertical", 6),
    Sketcher.Constraint("Horizontal", 7),
    Sketcher.Constraint("Vertical", 8),
    Sketcher.Constraint("Horizontal", 9),
    Sketcher.Constraint("Vertical", 10),
    Sketcher.Constraint("Horizontal", 11),
    Sketcher.Constraint("Vertical", 12),
    Sketcher.Constraint("Horizontal", 13),
    Sketcher.Constraint("Vertical", 14),
    Sketcher.Constraint("Horizontal", 15),
    Sketcher.Constraint("Vertical", 16),
    Sketcher.Constraint("Horizontal", 17),
    Sketcher.Constraint("Vertical", 18),
    Sketcher.Constraint("Horizontal", 19),
    Sketcher.Constraint("Vertical", 20),
    Sketcher.Constraint("Horizontal", 21),
    Sketcher.Constraint("Vertical", 22),
    Sketcher.Constraint("Horizontal", 23),
    Sketcher.Constraint("Vertical", 24),
    Sketcher.Constraint("Horizontal", 25),
    Sketcher.Constraint("Vertical", 26),
    Sketcher.Constraint("Horizontal", 27),
    Sketcher.Constraint("Vertical", 28),
    Sketcher.Constraint("Horizontal", 29),
    Sketcher.Constraint("Vertical", 30),
    Sketcher.Constraint("Horizontal", 31),
    Sketcher.Constraint("Horizontal", 1, 2, 4, 2),
    Sketcher.Constraint("Horizontal", 3, 2, 6, 2),
    Sketcher.Constraint("Horizontal", 5, 2, 8, 2),
    Sketcher.Constraint("Horizontal", 7, 2, 10, 2),
    Sketcher.Constraint("Horizontal", 9, 2, 12, 2),
    Sketcher.Constraint("Horizontal", 11, 2, 14, 2),
    Sketcher.Constraint("Horizontal", 13, 2, 16, 2),
    Sketcher.Constraint("Horizontal", 15, 2, 18, 2),
    Sketcher.Constraint("Horizontal", 17, 2, 20, 2),
    Sketcher.Constraint("Horizontal", 19, 2, 22, 2),
    Sketcher.Constraint("Horizontal", 21, 2, 24, 2),
    Sketcher.Constraint("Horizontal", 23, 2, 26, 2),
    Sketcher.Constraint("Horizontal", 25, 2, 28, 2),
    Sketcher.Constraint("Horizontal", 27, 2, 30, 2),
    Sketcher.Constraint("Equal", 3, 5),
    Sketcher.Constraint("Equal", 7, 9),
    Sketcher.Constraint("Equal", 11, 13),
    Sketcher.Constraint("Equal", 15, 17),
    Sketcher.Constraint("Equal", 19, 21),
    Sketcher.Constraint("Equal", 23, 25),
    Sketcher.Constraint("Equal", 27, 29),
    Sketcher.Constraint("DistanceX", 1, 1, 1, 2, Q("2 mm")),
    Sketcher.Constraint("DistanceY", 0, 2, 0, 1, Q("40 mm")),
    Sketcher.Constraint("DistanceX", 4, 2, 0, 2, Q("6 mm")),
    Sketcher.Constraint("DistanceX", 8, 2, 4, 2, Q("6 mm")),
    Sketcher.Constraint("DistanceX", 12, 2, 8, 2, Q("6 mm")),
    Sketcher.Constraint("DistanceX", 16, 2, 12, 2, Q("6 mm")),
    Sketcher.Constraint("DistanceX", 20, 2, 16, 2, Q("6 mm")),
    Sketcher.Constraint("DistanceX", 24, 2, 20, 2, Q("6 mm")),
    Sketcher.Constraint("DistanceX", 28, 2, 24, 2, Q("6 mm")),
    Sketcher.Constraint("DistanceX", 0, 2, -1, 1, Q("9.5 mm")),
    Sketcher.Constraint("DistanceY", -1, 1, 0, 2, Q("4.5 mm")),
])
pocket5 = body.newObject("PartDesign::Pocket", "Pocket004")
pocket5.Profile = sketch12
pocket5.Type = "ThroughAll"
doc.recompute()

fillet = body.newObject("PartDesign::Fillet", "Fillet")
fillet.Base = (pocket5, edges_at(pocket5, [
    (5.5, -5.5, -3.125),
    (5.5, 54.5, -3.125),
    (-83.5, 54.5, -3.125),
    (-83.5, -5.5, -3.125),
]))
fillet.Radius = 1.5

sketch13 = body.newObject("Sketcher::SketchObject", "Sketch012")
sketch13.AttachmentSupport = (doc.getObject("XY_Plane"), [""])
sketch13.MapMode = "FlatFace"
sketch13.AttachmentOffset = App.Placement(V(0, 0, -10.25), App.Rotation())
sketch13.addGeometry([
    Part.LineSegment(V(2.5, 54.5, 0), V(2.5, 53, 0)),
    Part.LineSegment(V(2.5, 53, 0), V(-0.5, 53, 0)),
    Part.LineSegment(V(-0.5, 53, 0), V(-0.5, 54.5, 0)),
    Part.LineSegment(V(-0.5, 54.5, 0), V(2.5, 54.5, 0)),
    Part.LineSegment(V(-55.5, 54.5, 0), V(-55.5, 53, 0)),
    Part.LineSegment(V(-55.5, 53, 0), V(-58.5, 53, 0)),
    Part.LineSegment(V(-58.5, 53, 0), V(-58.5, 54.5, 0)),
    Part.LineSegment(V(-58.5, 54.5, 0), V(-55.5, 54.5, 0)),
    Part.LineSegment(V(-55.5, -4, 0), V(-55.5, -5.5, 0)),
    Part.LineSegment(V(-55.5, -5.5, 0), V(-58.5, -5.5, 0)),
    Part.LineSegment(V(-58.5, -5.5, 0), V(-58.5, -4, 0)),
    Part.LineSegment(V(-58.5, -4, 0), V(-55.5, -4, 0)),
    Part.LineSegment(V(2.5, -4, 0), V(2.5, -5.5, 0)),
    Part.LineSegment(V(2.5, -5.5, 0), V(-0.5, -5.5, 0)),
    Part.LineSegment(V(-0.5, -5.5, 0), V(-0.5, -4, 0)),
    Part.LineSegment(V(-0.5, -4, 0), V(2.5, -4, 0)),
], False)
sketch13.addConstraint([
    Sketcher.Constraint("Coincident", 0, 2, 1, 1),
    Sketcher.Constraint("Coincident", 1, 2, 2, 1),
    Sketcher.Constraint("Coincident", 2, 2, 3, 1),
    Sketcher.Constraint("Coincident", 3, 2, 0, 1),
    Sketcher.Constraint("Coincident", 4, 2, 5, 1),
    Sketcher.Constraint("Coincident", 5, 2, 6, 1),
    Sketcher.Constraint("Coincident", 6, 2, 7, 1),
    Sketcher.Constraint("Coincident", 7, 2, 4, 1),
    Sketcher.Constraint("Coincident", 8, 2, 9, 1),
    Sketcher.Constraint("Coincident", 9, 2, 10, 1),
    Sketcher.Constraint("Coincident", 10, 2, 11, 1),
    Sketcher.Constraint("Coincident", 11, 2, 8, 1),
    Sketcher.Constraint("Coincident", 12, 2, 13, 1),
    Sketcher.Constraint("Coincident", 13, 2, 14, 1),
    Sketcher.Constraint("Coincident", 14, 2, 15, 1),
    Sketcher.Constraint("Coincident", 15, 2, 12, 1),
    Sketcher.Constraint("Vertical", 0),
    Sketcher.Constraint("Horizontal", 1),
    Sketcher.Constraint("Vertical", 2),
    Sketcher.Constraint("Horizontal", 3),
    Sketcher.Constraint("Vertical", 4),
    Sketcher.Constraint("Horizontal", 5),
    Sketcher.Constraint("Vertical", 6),
    Sketcher.Constraint("Horizontal", 7),
    Sketcher.Constraint("Vertical", 8),
    Sketcher.Constraint("Horizontal", 9),
    Sketcher.Constraint("Vertical", 10),
    Sketcher.Constraint("Horizontal", 11),
    Sketcher.Constraint("Vertical", 12),
    Sketcher.Constraint("Horizontal", 13),
    Sketcher.Constraint("Vertical", 14),
    Sketcher.Constraint("Horizontal", 15),
    Sketcher.Constraint("Horizontal", 1, 2, 4, 2),
    Sketcher.Constraint("Horizontal", 3, 2, 6, 2),
    Sketcher.Constraint("Horizontal", 9, 2, 12, 2),
    Sketcher.Constraint("Horizontal", 11, 2, 14, 2),
    Sketcher.Constraint("Vertical", 7, 2, 8, 2),
    Sketcher.Constraint("Vertical", 6, 2, 9, 2),
    Sketcher.Constraint("Vertical", 3, 2, 12, 2),
    Sketcher.Constraint("Vertical", 2, 2, 13, 2),
    Sketcher.Constraint("Equal", 3, 5),
    Sketcher.Constraint("Equal", 6, 8),
    Sketcher.Constraint("DistanceX", 1, 2, 1, 1, Q("3 mm")),
    Sketcher.Constraint("DistanceY", 0, 2, 0, 1, Q("1.5 mm")),
    Sketcher.Constraint("DistanceY", -1, 1, 0, 2, Q("53 mm")),
    Sketcher.Constraint("DistanceY", 10, 2, -1, 1, Q("4 mm")),
    Sketcher.Constraint("DistanceX", 4, 2, 1, 2, Q("55 mm")),
    Sketcher.Constraint("DistanceX", -1, 1, 0, 2, Q("2.5 mm")),
])
pad8 = body.newObject("PartDesign::Pad", "Pad007")
pad8.Profile = sketch13
pad8.Length = 1.5
pad8.Reversed = True

doc.recompute()
